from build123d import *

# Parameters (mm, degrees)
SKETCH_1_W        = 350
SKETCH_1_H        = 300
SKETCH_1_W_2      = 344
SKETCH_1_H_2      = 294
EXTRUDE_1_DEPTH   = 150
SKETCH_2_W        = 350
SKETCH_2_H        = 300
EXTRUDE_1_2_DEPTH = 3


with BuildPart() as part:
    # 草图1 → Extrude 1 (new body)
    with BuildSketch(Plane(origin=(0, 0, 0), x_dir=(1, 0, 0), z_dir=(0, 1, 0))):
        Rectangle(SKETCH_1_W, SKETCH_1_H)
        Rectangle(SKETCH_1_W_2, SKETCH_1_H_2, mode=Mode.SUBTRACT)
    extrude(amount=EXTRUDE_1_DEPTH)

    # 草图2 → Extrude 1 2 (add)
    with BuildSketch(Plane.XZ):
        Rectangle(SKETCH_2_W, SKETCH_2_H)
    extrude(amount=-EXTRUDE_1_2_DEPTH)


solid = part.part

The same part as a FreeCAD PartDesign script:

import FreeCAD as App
import Part
import Sketcher

V = App.Vector


def add_polygon(sketch, points):
    """Adds a closed chain of lines whose ends are joined by coincident constraints."""
    first, n = sketch.GeometryCount, len(points)
    for a, b in zip(points, points[1:] + points[:1]):
        sketch.addGeometry(Part.LineSegment(App.Vector(*a, 0), App.Vector(*b, 0)), False)
    for i in range(n):
        sketch.addConstraint(Sketcher.Constraint("Coincident", first + i, 2, first + (i + 1) % n, 1))

doc = App.newDocument("Part")
body = doc.addObject("PartDesign::Body", "Body")

# Sketch on XZ plane
sketch1 = body.newObject("Sketcher::SketchObject", "Sketch")
sketch1.AttachmentSupport = (doc.getObject("XZ_Plane"), [""])
sketch1.MapMode = "FlatFace"
add_polygon(sketch1, [(-175, -150), (-175, 150), (175, 150), (175, -150)])  # lines 0-3
add_polygon(sketch1, [(172, 147), (-172, 147), (-172, -147), (172, -147)])  # lines 4-7
sketch1.addConstraint(Sketcher.Constraint("Vertical", 0))
sketch1.addConstraint(Sketcher.Constraint("Horizontal", 1))
sketch1.addConstraint(Sketcher.Constraint("Vertical", 2))
sketch1.addConstraint(Sketcher.Constraint("Horizontal", 3))
sketch1.addConstraint(Sketcher.Constraint("Horizontal", 4))
sketch1.addConstraint(Sketcher.Constraint("Vertical", 5))
sketch1.addConstraint(Sketcher.Constraint("Horizontal", 6))
sketch1.addConstraint(Sketcher.Constraint("Vertical", 7))
sketch1.addConstraint(Sketcher.Constraint("Symmetric", 0, 2, 2, 2, -1, 1))
sketch1.addConstraint(Sketcher.Constraint("Symmetric", 4, 2, 6, 2, -1, 1))
sketch1.addConstraint(Sketcher.Constraint("DistanceX", 1, 1, 1, 2, 350.0))
sketch1.addConstraint(Sketcher.Constraint("DistanceX", 4, 2, 4, 1, 344.0))
sketch1.addConstraint(Sketcher.Constraint("DistanceY", 0, 1, 0, 2, 300.0))
sketch1.addConstraint(Sketcher.Constraint("DistanceY", 5, 2, 5, 1, 294.0))
pad1 = body.newObject("PartDesign::Pad", "Pad")
pad1.Profile = sketch1
pad1.Length = 150
pad1.Reversed = True

# Sketch on XZ plane
sketch2 = body.newObject("Sketcher::SketchObject", "Sketch001")
sketch2.AttachmentSupport = (doc.getObject("XZ_Plane"), [""])
sketch2.MapMode = "FlatFace"
add_polygon(sketch2, [(-175, 150), (-175, -150), (175, -150), (175, 150)])  # lines 0-3
sketch2.addConstraint(Sketcher.Constraint("Vertical", 0))
sketch2.addConstraint(Sketcher.Constraint("Horizontal", 1))
sketch2.addConstraint(Sketcher.Constraint("Vertical", 2))
sketch2.addConstraint(Sketcher.Constraint("Horizontal", 3))
sketch2.addConstraint(Sketcher.Constraint("Symmetric", 0, 2, 2, 2, -1, 1))
sketch2.addConstraint(Sketcher.Constraint("DistanceX", 1, 1, 1, 2, 350.0))
sketch2.addConstraint(Sketcher.Constraint("DistanceY", 0, 2, 0, 1, 300.0))
pad2 = body.newObject("PartDesign::Pad", "Pad001")
pad2.Profile = sketch2
pad2.Length = 3
pad2.Reversed = True

doc.recompute()
